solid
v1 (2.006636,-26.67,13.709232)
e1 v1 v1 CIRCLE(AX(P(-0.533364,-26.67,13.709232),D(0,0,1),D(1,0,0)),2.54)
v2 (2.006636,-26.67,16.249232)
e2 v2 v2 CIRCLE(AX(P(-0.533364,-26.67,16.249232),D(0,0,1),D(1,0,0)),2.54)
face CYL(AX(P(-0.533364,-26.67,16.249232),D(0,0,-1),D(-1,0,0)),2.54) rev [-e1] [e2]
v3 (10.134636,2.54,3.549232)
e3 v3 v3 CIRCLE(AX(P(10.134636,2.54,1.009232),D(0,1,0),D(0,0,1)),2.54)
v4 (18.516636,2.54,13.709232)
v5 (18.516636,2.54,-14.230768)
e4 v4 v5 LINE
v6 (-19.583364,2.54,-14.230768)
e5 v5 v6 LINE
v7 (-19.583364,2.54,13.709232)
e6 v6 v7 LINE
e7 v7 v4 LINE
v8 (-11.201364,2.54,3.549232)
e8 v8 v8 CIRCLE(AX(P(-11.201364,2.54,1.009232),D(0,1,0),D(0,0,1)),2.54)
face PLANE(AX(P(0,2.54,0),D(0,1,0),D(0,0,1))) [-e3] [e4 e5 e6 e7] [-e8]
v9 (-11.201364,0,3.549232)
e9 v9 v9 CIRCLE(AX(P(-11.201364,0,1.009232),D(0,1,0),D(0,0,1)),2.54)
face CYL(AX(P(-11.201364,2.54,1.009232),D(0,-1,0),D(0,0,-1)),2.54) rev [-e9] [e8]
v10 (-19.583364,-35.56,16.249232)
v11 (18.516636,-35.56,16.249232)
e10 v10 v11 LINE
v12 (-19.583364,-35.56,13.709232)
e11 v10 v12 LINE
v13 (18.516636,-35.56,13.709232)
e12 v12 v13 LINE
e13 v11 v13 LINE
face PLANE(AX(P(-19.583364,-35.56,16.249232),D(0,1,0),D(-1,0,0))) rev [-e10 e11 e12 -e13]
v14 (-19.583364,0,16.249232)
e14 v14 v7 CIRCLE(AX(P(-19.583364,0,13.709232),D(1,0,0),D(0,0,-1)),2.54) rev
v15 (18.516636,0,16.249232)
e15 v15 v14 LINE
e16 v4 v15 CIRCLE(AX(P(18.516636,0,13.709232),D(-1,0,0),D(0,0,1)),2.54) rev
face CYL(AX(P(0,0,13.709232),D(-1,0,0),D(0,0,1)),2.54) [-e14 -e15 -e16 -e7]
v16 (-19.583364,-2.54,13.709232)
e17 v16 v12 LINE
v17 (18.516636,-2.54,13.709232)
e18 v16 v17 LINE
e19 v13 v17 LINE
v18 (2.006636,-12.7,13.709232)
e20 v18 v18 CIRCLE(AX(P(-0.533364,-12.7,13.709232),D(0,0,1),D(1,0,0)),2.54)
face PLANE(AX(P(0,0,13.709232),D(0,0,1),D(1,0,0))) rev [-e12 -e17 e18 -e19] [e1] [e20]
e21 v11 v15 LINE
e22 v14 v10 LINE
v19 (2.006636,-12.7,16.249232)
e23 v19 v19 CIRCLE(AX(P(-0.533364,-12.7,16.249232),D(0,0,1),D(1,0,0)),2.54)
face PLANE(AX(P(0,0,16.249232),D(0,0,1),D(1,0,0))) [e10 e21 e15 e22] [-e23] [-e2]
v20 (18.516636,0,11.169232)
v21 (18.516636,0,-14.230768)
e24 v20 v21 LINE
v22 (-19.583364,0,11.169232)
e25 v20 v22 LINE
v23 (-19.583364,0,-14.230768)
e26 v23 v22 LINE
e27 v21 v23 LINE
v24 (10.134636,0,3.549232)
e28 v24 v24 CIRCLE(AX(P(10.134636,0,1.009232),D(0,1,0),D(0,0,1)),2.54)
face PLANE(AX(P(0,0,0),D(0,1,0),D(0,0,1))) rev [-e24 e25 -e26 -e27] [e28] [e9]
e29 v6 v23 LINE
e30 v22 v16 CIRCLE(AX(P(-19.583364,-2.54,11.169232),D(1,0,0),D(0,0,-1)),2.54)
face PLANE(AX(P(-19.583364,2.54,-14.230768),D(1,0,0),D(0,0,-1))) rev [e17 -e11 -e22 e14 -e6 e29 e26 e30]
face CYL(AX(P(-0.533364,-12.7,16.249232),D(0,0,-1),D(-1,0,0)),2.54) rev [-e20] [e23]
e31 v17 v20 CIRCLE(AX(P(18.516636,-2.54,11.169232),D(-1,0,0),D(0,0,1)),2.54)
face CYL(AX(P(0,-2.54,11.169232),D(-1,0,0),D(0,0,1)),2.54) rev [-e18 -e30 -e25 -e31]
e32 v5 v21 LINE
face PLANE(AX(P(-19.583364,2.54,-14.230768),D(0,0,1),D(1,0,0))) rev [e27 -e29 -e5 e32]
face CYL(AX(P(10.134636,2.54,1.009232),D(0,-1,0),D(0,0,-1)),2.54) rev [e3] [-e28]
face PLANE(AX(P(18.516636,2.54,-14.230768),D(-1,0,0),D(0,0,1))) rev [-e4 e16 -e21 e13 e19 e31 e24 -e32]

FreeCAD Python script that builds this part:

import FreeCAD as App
import Part
import Sketcher
from FreeCAD import Vector
Q = App.Units.Quantity


def edges_at(feature, points):
    """Names of the edges that pass closest to the given points."""
    edges = feature.Shape.Edges
    near = lambda p: min(range(len(edges)), key=lambda i: edges[i].distToShape(Part.Vertex(*p))[0])
    return sorted({f"Edge{near(p) + 1}" for p in points})


def add_polygon(sketch, points):
    """Adds a closed chain of lines whose ends are joined by coincident constraints."""
    first, n = sketch.GeometryCount, len(points)
    for a, b in zip(points, points[1:] + points[:1]):
        sketch.addGeometry(Part.LineSegment(App.Vector(*a, 0), App.Vector(*b, 0)), False)
    for i in range(n):
        sketch.addConstraint(Sketcher.Constraint("Coincident", first + i, 2, first + (i + 1) % n, 1))

doc = App.newDocument("Part")
body = doc.addObject("PartDesign::Body", "Body")

# Sketch on XZ plane
sketch1 = body.newObject("Sketcher::SketchObject", "Sketch")
sketch1.AttachmentSupport = (doc.getObject("XZ_Plane"), [""])
sketch1.MapMode = "FlatFace"
add_polygon(sketch1, [(18.5, -14.2), (-19.6, -14.2), (-19.6, 13.7), (18.5, 13.7)])  # lines 0-3
sketch1.addGeometry(Part.Circle(Vector(10.1, 1, 0), Vector(0, 0, 1), 2.5), False)  # 4
sketch1.addGeometry(Part.Circle(Vector(-11.2, 1, 0), Vector(0, 0, 1), 2.5), False)  # 5
sketch1.addConstraint([
    Sketcher.Constraint("Horizontal", 0),
    Sketcher.Constraint("Vertical", 1),
    Sketcher.Constraint("Horizontal", 2),
    Sketcher.Constraint("Vertical", 3),
    Sketcher.Constraint("Equal", 4, 5),
    Sketcher.Constraint("Horizontal", 4, 3, 5, 3),
    Sketcher.Constraint("Diameter", 4, Q("0.2 in")),
    Sketcher.Constraint("DistanceX", 0, 2, 0, 1, Q("1.5 in")),
    Sketcher.Constraint("DistanceY", 1, 1, 1, 2, Q("1.1 in")),
    Sketcher.Constraint("DistanceY", 0, 2, 5, 3, Q("0.6 in")),
    Sketcher.Constraint("DistanceX", 5, 3, 4, 3, Q("0.84 in")),
    Sketcher.Constraint("DistanceX", 0, 2, 5, 3, Q("0.33 in")),
    Sketcher.Constraint("DistanceY", -1, 1, 4, 3, 1.009232),
    Sketcher.Constraint("DistanceX", -1, 1, 4, 3, 10.134636),
])
pad1 = body.newObject("PartDesign::Pad", "Pad")
pad1.Profile = sketch1
pad1.Length = Q("0.1 in")
pad1.Reversed = True

# Sketch on XY plane
sketch2 = body.newObject("Sketcher::SketchObject", "Sketch001")
sketch2.AttachmentSupport = (doc.getObject("XY_Plane"), [""])
sketch2.MapMode = "FlatFace"
sketch2.AttachmentOffset = App.Placement(Vector(0, 0, 13.709232), App.Rotation())
add_polygon(sketch2, [(-19.6, 2.5), (-19.6, -35.6), (18.5, -35.6), (18.5, 2.5)])  # lines 0-3
sketch2.addGeometry(Part.Circle(Vector(-0.5, -26.7, 0), Vector(0, 0, 1), 2.5), False)  # 4
sketch2.addGeometry(Part.Circle(Vector(-0.5, -12.7, 0), Vector(0, 0, 1), 2.5), False)  # 5
sketch2.addConstraint([
    Sketcher.Constraint("Vertical", 0),
    Sketcher.Constraint("Horizontal", 1),
    Sketcher.Constraint("Vertical", 2),
    Sketcher.Constraint("Horizontal", 3),
    Sketcher.Constraint("Equal", 4, 5),
    Sketcher.Constraint("Vertical", 4, 3, 5, 3),
    Sketcher.Constraint("Equal", 3, 0),
    Sketcher.Constraint("Diameter", 4, Q("0.2 in")),
    Sketcher.Constraint("DistanceX", 1, 1, 1, 2, Q("1.5 in")),
    Sketcher.Constraint("DistanceY", 5, 3, -1, 1, Q("0.5 in")),
    Sketcher.Constraint("DistanceY", 0, 2, -1, 1, Q("1.4 in")),
    Sketcher.Constraint("DistanceY", 4, 3, -1, 1, Q("1.05 in")),
    Sketcher.Constraint("DistanceX", 0, 2, 4, 3, Q("0.75 in")),
    Sketcher.Constraint("DistanceX", 4, 3, -1, 1, 0.533364),
])
pad2 = body.newObject("PartDesign::Pad", "Pad001")
pad2.Profile = sketch2
pad2.Length = Q("0.1 in")
doc.recompute()

fillet = body.newObject("PartDesign::Fillet", "Fillet")
fillet.Base = (pad2, edges_at(pad2, [(-0.533, 0, 13.709)]))
fillet.Radius = Q("0.1 in")
doc.recompute()

fillet2 = body.newObject("PartDesign::Fillet", "Fillet001")
fillet2.Base = (fillet, edges_at(fillet, [(-0.533, 2.54, 16.249)]))
fillet2.Radius = Q("0.1 in")

doc.recompute()
